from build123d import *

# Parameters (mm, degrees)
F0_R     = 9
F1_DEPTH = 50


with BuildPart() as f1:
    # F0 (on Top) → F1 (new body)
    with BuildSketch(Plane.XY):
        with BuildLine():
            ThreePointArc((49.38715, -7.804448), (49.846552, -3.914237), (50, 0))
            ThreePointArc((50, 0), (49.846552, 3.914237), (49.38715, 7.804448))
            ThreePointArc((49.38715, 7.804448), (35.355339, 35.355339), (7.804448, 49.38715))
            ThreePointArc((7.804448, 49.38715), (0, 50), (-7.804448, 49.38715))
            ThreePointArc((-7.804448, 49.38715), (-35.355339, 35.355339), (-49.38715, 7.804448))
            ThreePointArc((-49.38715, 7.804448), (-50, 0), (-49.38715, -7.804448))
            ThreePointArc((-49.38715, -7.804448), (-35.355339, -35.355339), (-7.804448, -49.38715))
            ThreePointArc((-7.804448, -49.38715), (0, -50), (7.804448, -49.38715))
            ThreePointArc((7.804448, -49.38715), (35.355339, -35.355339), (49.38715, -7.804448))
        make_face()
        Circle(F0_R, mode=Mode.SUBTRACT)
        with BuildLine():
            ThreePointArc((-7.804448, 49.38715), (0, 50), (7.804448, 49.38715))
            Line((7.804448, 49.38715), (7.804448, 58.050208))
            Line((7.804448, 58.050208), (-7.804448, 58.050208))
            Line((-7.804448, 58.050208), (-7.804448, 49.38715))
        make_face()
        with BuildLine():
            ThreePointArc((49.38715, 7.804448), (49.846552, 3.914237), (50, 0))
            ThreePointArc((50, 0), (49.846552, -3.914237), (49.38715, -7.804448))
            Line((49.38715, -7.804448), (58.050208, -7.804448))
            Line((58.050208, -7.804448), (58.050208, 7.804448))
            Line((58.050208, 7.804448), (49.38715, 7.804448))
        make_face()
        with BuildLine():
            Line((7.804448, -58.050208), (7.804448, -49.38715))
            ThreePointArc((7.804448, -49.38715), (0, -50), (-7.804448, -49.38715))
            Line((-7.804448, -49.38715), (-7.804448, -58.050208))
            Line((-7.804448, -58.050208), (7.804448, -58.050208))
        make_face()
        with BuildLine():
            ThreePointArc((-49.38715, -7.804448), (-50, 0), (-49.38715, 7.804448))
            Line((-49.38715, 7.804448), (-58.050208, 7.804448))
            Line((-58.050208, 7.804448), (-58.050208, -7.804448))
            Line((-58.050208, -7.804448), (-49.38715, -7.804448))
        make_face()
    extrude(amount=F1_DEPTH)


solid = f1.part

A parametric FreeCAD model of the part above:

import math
import FreeCAD as App
import Part
import Sketcher

doc = App.newDocument("Part")
body = doc.addObject("PartDesign::Body", "Body")

# Sketch on XY plane
sketch1 = body.newObject("Sketcher::SketchObject", "Sketch")
sketch1.AttachmentSupport = (doc.getObject("XY_Plane"), [""])
sketch1.MapMode = "FlatFace"
sketch1.addGeometry([
    Part.ArcOfCircle(Part.Circle(App.Vector(0, 0, 0), App.Vector(0, 0, 1), 50), math.radians(9), math.radians(81)),  # 0
    Part.LineSegment(App.Vector(8, 49, 0), App.Vector(8, 58, 0)),  # 1
    Part.LineSegment(App.Vector(8, 58, 0), App.Vector(-8, 58, 0)),  # 2
    Part.LineSegment(App.Vector(-8, 58, 0), App.Vector(-8, 49, 0)),  # 3
    Part.ArcOfCircle(Part.Circle(App.Vector(0, 0, 0), App.Vector(0, 0, 1), 50), math.radians(99), math.radians(171)),  # 4
    Part.LineSegment(App.Vector(-49, 8, 0), App.Vector(-58, 8, 0)),  # 5
    Part.LineSegment(App.Vector(-58, 8, 0), App.Vector(-58, -8, 0)),  # 6
    Part.LineSegment(App.Vector(-58, -8, 0), App.Vector(-49, -8, 0)),  # 7
    Part.ArcOfCircle(Part.Circle(App.Vector(0, 0, 0), App.Vector(0, 0, 1), 50), math.radians(-171), math.radians(-99)),  # 8
    Part.LineSegment(App.Vector(-8, -49, 0), App.Vector(-8, -58, 0)),  # 9
    Part.LineSegment(App.Vector(-8, -58, 0), App.Vector(8, -58, 0)),  # 10
    Part.LineSegment(App.Vector(8, -58, 0), App.Vector(8, -49, 0)),  # 11
    Part.ArcOfCircle(Part.Circle(App.Vector(0, 0, 0), App.Vector(0, 0, 1), 50), math.radians(-81), math.radians(-9)),  # 12
    Part.LineSegment(App.Vector(49, -8, 0), App.Vector(58, -8, 0)),  # 13
    Part.LineSegment(App.Vector(58, -8, 0), App.Vector(58, 8, 0)),  # 14
    Part.LineSegment(App.Vector(58, 8, 0), App.Vector(49, 8, 0)),  # 15
    Part.Circle(App.Vector(0, 0, 0), App.Vector(0, 0, 1), 9),  # 16
], False)
sketch1.addConstraint([
    Sketcher.Constraint("Coincident", 0, 2, 1, 1),
    Sketcher.Constraint("Coincident", 1, 2, 2, 1),
    Sketcher.Constraint("Coincident", 2, 2, 3, 1),
    Sketcher.Constraint("Coincident", 3, 2, 4, 1),
    Sketcher.Constraint("Coincident", 4, 2, 5, 1),
    Sketcher.Constraint("Coincident", 5, 2, 6, 1),
    Sketcher.Constraint("Coincident", 6, 2, 7, 1),
    Sketcher.Constraint("Coincident", 7, 2, 8, 1),
    Sketcher.Constraint("Coincident", 8, 2, 9, 1),
    Sketcher.Constraint("Coincident", 9, 2, 10, 1),
    Sketcher.Constraint("Coincident", 10, 2, 11, 1),
    Sketcher.Constraint("Coincident", 11, 2, 12, 1),
    Sketcher.Constraint("Coincident", 12, 2, 13, 1),
    Sketcher.Constraint("Coincident", 13, 2, 14, 1),
    Sketcher.Constraint("Coincident", 14, 2, 15, 1),
    Sketcher.Constraint("Coincident", 15, 2, 0, 1),
    Sketcher.Constraint("Vertical", 1),
    Sketcher.Constraint("Horizontal", 2),
    Sketcher.Constraint("Vertical", 3),
    Sketcher.Constraint("Horizontal", 5),
    Sketcher.Constraint("Vertical", 6),
    Sketcher.Constraint("Horizontal", 7),
    Sketcher.Constraint("Vertical", 9),
    Sketcher.Constraint("Horizontal", 10),
    Sketcher.Constraint("Vertical", 11),
    Sketcher.Constraint("Horizontal", 13),
    Sketcher.Constraint("Vertical", 14),
    Sketcher.Constraint("Horizontal", 15),
    Sketcher.Constraint("Coincident", 0, 3, -1, 1),
    Sketcher.Constraint("Coincident", 4, 3, -1, 1),
    Sketcher.Constraint("Coincident", 8, 3, -1, 1),
    Sketcher.Constraint("Coincident", 12, 3, -1, 1),
    Sketcher.Constraint("Coincident", 16, 3, -1, 1),
    Sketcher.Constraint("Equal", 0, 4),
    Sketcher.Constraint("Equal", 4, 8),
    Sketcher.Constraint("Equal", 8, 12),
    Sketcher.Constraint("Symmetric", 1, 2, 9, 2, -1, 1),
    Sketcher.Constraint("Symmetric", 5, 2, 13, 2, -1, 1),
    Sketcher.Constraint("Horizontal", 0, 2, 3, 2),
    Sketcher.Constraint("Horizontal", 8, 2, 11, 2),
    Sketcher.Constraint("Horizontal", 7, 2, 12, 2),
    Sketcher.Constraint("Horizontal", 5, 2, 14, 2),
    Sketcher.Constraint("Equal", 15, 1),
    Sketcher.Constraint("Equal", 10, 6),
    Sketcher.Constraint("Diameter", 16, 18.0),
    Sketcher.Constraint("Radius", 0, 50.0),
    Sketcher.Constraint("DistanceX", 2, 2, 2, 1, 15.608896),
    Sketcher.Constraint("DistanceX", 5, 2, 5, 1, 8.663058),
])
pad1 = body.newObject("PartDesign::Pad", "Pad")
pad1.Profile = sketch1
pad1.Length = 50

doc.recompute()
